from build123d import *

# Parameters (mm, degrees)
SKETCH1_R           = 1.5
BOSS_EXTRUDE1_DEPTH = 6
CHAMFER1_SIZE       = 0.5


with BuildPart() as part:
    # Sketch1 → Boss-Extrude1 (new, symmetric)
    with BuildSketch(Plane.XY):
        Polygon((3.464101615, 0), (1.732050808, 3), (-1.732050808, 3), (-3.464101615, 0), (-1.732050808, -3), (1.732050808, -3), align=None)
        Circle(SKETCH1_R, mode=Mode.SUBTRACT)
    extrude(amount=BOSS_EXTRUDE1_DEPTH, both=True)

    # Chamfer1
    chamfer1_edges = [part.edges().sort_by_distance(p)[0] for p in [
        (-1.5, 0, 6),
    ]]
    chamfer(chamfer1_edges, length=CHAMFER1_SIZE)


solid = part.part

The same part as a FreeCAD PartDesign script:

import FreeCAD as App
import Part
import Sketcher
Q = App.Units.Quantity


def edges_at(feature, points):
    """Names of the edges that pass closest to the given points."""
    edges = feature.Shape.Edges
    near = lambda p: min(range(len(edges)), key=lambda i: edges[i].distToShape(Part.Vertex(*p))[0])
    return sorted({f"Edge{near(p) + 1}" for p in points})

doc = App.newDocument("Part")
params = doc.addObject("Spreadsheet::Sheet", "Params")
for row, (alias, value) in enumerate([
    ("sketch1_diameter", "3 mm"),
    ("pad1_length", "12 mm"),
    ("chamfer_size", "0.5 mm"),
], start=1):
    params.set(f"A{row}", alias)
    params.set(f"B{row}", "=" + value)
    params.setAlias(f"B{row}", alias)

body = doc.addObject("PartDesign::Body", "Body")

sketch1 = doc.addObject("Sketcher::SketchObject", "Sketch")
body.addObject(sketch1)
sketch1.AttachmentSupport = (doc.XY_Plane, [""])
sketch1.MapMode = "FlatFace"
sketch1.addGeometry([
    Part.LineSegment(App.Vector(3.464102, 0, 0), App.Vector(1.732051, 3, 0)),
    Part.LineSegment(App.Vector(1.732051, 3, 0), App.Vector(-1.732051, 3, 0)),
    Part.LineSegment(App.Vector(-1.732051, 3, 0), App.Vector(-3.464102, 0, 0)),
    Part.LineSegment(App.Vector(-3.464102, 0, 0), App.Vector(-1.732051, -3, 0)),
    Part.LineSegment(App.Vector(-1.732051, -3, 0), App.Vector(1.732051, -3, 0)),
    Part.LineSegment(App.Vector(1.732051, -3, 0), App.Vector(3.464102, 0, 0)),
    Part.Circle(App.Vector(0, 0, 0), App.Vector(0, 0, 1), 1.5),
], False)
sketch1.addConstraint([
    Sketcher.Constraint("Coincident", 0, 2, 1, 1),
    Sketcher.Constraint("Coincident", 1, 2, 2, 1),
    Sketcher.Constraint("Coincident", 2, 2, 3, 1),
    Sketcher.Constraint("Coincident", 3, 2, 4, 1),
    Sketcher.Constraint("Coincident", 4, 2, 5, 1),
    Sketcher.Constraint("Coincident", 5, 2, 0, 1),
    Sketcher.Constraint("Horizontal", 1),
    Sketcher.Constraint("Horizontal", 4),
    Sketcher.Constraint("Coincident", 6, 3, -1, 1),
    Sketcher.Constraint("Symmetric", 0, 2, 3, 2, -1, 1),
    Sketcher.Constraint("Symmetric", 2, 2, 5, 2, -1, 1),
    Sketcher.Constraint("PointOnObject", 2, 2, -1),
    Sketcher.Constraint("Parallel", 2, 5),
    Sketcher.Constraint("Vertical", 1, 2, 3, 2),
    Sketcher.Constraint("Diameter", 6, 3.0),
    Sketcher.Constraint("Angle", 0, Q("120 deg")),
    Sketcher.Constraint("DistanceY", -1, 1, 0, 2, 3.0),
    Sketcher.Constraint("DistanceX", 1, 2, 1, 1, 3.464102),
])
sketch1.setExpression("Constraints[14]", "Params.sketch1_diameter")
pad1 = doc.addObject("PartDesign::Pad", "Pad")
body.addObject(pad1)
pad1.Profile = sketch1
pad1.setExpression("Length", "Params.pad1_length")
pad1.Midplane = True
doc.recompute()

chamfer = doc.addObject("PartDesign::Chamfer", "Chamfer")
body.addObject(chamfer)
chamfer.Base = (pad1, edges_at(pad1, [(-1.5, 0, 6)]))
chamfer.setExpression("Size", "Params.chamfer_size")

doc.recompute()
